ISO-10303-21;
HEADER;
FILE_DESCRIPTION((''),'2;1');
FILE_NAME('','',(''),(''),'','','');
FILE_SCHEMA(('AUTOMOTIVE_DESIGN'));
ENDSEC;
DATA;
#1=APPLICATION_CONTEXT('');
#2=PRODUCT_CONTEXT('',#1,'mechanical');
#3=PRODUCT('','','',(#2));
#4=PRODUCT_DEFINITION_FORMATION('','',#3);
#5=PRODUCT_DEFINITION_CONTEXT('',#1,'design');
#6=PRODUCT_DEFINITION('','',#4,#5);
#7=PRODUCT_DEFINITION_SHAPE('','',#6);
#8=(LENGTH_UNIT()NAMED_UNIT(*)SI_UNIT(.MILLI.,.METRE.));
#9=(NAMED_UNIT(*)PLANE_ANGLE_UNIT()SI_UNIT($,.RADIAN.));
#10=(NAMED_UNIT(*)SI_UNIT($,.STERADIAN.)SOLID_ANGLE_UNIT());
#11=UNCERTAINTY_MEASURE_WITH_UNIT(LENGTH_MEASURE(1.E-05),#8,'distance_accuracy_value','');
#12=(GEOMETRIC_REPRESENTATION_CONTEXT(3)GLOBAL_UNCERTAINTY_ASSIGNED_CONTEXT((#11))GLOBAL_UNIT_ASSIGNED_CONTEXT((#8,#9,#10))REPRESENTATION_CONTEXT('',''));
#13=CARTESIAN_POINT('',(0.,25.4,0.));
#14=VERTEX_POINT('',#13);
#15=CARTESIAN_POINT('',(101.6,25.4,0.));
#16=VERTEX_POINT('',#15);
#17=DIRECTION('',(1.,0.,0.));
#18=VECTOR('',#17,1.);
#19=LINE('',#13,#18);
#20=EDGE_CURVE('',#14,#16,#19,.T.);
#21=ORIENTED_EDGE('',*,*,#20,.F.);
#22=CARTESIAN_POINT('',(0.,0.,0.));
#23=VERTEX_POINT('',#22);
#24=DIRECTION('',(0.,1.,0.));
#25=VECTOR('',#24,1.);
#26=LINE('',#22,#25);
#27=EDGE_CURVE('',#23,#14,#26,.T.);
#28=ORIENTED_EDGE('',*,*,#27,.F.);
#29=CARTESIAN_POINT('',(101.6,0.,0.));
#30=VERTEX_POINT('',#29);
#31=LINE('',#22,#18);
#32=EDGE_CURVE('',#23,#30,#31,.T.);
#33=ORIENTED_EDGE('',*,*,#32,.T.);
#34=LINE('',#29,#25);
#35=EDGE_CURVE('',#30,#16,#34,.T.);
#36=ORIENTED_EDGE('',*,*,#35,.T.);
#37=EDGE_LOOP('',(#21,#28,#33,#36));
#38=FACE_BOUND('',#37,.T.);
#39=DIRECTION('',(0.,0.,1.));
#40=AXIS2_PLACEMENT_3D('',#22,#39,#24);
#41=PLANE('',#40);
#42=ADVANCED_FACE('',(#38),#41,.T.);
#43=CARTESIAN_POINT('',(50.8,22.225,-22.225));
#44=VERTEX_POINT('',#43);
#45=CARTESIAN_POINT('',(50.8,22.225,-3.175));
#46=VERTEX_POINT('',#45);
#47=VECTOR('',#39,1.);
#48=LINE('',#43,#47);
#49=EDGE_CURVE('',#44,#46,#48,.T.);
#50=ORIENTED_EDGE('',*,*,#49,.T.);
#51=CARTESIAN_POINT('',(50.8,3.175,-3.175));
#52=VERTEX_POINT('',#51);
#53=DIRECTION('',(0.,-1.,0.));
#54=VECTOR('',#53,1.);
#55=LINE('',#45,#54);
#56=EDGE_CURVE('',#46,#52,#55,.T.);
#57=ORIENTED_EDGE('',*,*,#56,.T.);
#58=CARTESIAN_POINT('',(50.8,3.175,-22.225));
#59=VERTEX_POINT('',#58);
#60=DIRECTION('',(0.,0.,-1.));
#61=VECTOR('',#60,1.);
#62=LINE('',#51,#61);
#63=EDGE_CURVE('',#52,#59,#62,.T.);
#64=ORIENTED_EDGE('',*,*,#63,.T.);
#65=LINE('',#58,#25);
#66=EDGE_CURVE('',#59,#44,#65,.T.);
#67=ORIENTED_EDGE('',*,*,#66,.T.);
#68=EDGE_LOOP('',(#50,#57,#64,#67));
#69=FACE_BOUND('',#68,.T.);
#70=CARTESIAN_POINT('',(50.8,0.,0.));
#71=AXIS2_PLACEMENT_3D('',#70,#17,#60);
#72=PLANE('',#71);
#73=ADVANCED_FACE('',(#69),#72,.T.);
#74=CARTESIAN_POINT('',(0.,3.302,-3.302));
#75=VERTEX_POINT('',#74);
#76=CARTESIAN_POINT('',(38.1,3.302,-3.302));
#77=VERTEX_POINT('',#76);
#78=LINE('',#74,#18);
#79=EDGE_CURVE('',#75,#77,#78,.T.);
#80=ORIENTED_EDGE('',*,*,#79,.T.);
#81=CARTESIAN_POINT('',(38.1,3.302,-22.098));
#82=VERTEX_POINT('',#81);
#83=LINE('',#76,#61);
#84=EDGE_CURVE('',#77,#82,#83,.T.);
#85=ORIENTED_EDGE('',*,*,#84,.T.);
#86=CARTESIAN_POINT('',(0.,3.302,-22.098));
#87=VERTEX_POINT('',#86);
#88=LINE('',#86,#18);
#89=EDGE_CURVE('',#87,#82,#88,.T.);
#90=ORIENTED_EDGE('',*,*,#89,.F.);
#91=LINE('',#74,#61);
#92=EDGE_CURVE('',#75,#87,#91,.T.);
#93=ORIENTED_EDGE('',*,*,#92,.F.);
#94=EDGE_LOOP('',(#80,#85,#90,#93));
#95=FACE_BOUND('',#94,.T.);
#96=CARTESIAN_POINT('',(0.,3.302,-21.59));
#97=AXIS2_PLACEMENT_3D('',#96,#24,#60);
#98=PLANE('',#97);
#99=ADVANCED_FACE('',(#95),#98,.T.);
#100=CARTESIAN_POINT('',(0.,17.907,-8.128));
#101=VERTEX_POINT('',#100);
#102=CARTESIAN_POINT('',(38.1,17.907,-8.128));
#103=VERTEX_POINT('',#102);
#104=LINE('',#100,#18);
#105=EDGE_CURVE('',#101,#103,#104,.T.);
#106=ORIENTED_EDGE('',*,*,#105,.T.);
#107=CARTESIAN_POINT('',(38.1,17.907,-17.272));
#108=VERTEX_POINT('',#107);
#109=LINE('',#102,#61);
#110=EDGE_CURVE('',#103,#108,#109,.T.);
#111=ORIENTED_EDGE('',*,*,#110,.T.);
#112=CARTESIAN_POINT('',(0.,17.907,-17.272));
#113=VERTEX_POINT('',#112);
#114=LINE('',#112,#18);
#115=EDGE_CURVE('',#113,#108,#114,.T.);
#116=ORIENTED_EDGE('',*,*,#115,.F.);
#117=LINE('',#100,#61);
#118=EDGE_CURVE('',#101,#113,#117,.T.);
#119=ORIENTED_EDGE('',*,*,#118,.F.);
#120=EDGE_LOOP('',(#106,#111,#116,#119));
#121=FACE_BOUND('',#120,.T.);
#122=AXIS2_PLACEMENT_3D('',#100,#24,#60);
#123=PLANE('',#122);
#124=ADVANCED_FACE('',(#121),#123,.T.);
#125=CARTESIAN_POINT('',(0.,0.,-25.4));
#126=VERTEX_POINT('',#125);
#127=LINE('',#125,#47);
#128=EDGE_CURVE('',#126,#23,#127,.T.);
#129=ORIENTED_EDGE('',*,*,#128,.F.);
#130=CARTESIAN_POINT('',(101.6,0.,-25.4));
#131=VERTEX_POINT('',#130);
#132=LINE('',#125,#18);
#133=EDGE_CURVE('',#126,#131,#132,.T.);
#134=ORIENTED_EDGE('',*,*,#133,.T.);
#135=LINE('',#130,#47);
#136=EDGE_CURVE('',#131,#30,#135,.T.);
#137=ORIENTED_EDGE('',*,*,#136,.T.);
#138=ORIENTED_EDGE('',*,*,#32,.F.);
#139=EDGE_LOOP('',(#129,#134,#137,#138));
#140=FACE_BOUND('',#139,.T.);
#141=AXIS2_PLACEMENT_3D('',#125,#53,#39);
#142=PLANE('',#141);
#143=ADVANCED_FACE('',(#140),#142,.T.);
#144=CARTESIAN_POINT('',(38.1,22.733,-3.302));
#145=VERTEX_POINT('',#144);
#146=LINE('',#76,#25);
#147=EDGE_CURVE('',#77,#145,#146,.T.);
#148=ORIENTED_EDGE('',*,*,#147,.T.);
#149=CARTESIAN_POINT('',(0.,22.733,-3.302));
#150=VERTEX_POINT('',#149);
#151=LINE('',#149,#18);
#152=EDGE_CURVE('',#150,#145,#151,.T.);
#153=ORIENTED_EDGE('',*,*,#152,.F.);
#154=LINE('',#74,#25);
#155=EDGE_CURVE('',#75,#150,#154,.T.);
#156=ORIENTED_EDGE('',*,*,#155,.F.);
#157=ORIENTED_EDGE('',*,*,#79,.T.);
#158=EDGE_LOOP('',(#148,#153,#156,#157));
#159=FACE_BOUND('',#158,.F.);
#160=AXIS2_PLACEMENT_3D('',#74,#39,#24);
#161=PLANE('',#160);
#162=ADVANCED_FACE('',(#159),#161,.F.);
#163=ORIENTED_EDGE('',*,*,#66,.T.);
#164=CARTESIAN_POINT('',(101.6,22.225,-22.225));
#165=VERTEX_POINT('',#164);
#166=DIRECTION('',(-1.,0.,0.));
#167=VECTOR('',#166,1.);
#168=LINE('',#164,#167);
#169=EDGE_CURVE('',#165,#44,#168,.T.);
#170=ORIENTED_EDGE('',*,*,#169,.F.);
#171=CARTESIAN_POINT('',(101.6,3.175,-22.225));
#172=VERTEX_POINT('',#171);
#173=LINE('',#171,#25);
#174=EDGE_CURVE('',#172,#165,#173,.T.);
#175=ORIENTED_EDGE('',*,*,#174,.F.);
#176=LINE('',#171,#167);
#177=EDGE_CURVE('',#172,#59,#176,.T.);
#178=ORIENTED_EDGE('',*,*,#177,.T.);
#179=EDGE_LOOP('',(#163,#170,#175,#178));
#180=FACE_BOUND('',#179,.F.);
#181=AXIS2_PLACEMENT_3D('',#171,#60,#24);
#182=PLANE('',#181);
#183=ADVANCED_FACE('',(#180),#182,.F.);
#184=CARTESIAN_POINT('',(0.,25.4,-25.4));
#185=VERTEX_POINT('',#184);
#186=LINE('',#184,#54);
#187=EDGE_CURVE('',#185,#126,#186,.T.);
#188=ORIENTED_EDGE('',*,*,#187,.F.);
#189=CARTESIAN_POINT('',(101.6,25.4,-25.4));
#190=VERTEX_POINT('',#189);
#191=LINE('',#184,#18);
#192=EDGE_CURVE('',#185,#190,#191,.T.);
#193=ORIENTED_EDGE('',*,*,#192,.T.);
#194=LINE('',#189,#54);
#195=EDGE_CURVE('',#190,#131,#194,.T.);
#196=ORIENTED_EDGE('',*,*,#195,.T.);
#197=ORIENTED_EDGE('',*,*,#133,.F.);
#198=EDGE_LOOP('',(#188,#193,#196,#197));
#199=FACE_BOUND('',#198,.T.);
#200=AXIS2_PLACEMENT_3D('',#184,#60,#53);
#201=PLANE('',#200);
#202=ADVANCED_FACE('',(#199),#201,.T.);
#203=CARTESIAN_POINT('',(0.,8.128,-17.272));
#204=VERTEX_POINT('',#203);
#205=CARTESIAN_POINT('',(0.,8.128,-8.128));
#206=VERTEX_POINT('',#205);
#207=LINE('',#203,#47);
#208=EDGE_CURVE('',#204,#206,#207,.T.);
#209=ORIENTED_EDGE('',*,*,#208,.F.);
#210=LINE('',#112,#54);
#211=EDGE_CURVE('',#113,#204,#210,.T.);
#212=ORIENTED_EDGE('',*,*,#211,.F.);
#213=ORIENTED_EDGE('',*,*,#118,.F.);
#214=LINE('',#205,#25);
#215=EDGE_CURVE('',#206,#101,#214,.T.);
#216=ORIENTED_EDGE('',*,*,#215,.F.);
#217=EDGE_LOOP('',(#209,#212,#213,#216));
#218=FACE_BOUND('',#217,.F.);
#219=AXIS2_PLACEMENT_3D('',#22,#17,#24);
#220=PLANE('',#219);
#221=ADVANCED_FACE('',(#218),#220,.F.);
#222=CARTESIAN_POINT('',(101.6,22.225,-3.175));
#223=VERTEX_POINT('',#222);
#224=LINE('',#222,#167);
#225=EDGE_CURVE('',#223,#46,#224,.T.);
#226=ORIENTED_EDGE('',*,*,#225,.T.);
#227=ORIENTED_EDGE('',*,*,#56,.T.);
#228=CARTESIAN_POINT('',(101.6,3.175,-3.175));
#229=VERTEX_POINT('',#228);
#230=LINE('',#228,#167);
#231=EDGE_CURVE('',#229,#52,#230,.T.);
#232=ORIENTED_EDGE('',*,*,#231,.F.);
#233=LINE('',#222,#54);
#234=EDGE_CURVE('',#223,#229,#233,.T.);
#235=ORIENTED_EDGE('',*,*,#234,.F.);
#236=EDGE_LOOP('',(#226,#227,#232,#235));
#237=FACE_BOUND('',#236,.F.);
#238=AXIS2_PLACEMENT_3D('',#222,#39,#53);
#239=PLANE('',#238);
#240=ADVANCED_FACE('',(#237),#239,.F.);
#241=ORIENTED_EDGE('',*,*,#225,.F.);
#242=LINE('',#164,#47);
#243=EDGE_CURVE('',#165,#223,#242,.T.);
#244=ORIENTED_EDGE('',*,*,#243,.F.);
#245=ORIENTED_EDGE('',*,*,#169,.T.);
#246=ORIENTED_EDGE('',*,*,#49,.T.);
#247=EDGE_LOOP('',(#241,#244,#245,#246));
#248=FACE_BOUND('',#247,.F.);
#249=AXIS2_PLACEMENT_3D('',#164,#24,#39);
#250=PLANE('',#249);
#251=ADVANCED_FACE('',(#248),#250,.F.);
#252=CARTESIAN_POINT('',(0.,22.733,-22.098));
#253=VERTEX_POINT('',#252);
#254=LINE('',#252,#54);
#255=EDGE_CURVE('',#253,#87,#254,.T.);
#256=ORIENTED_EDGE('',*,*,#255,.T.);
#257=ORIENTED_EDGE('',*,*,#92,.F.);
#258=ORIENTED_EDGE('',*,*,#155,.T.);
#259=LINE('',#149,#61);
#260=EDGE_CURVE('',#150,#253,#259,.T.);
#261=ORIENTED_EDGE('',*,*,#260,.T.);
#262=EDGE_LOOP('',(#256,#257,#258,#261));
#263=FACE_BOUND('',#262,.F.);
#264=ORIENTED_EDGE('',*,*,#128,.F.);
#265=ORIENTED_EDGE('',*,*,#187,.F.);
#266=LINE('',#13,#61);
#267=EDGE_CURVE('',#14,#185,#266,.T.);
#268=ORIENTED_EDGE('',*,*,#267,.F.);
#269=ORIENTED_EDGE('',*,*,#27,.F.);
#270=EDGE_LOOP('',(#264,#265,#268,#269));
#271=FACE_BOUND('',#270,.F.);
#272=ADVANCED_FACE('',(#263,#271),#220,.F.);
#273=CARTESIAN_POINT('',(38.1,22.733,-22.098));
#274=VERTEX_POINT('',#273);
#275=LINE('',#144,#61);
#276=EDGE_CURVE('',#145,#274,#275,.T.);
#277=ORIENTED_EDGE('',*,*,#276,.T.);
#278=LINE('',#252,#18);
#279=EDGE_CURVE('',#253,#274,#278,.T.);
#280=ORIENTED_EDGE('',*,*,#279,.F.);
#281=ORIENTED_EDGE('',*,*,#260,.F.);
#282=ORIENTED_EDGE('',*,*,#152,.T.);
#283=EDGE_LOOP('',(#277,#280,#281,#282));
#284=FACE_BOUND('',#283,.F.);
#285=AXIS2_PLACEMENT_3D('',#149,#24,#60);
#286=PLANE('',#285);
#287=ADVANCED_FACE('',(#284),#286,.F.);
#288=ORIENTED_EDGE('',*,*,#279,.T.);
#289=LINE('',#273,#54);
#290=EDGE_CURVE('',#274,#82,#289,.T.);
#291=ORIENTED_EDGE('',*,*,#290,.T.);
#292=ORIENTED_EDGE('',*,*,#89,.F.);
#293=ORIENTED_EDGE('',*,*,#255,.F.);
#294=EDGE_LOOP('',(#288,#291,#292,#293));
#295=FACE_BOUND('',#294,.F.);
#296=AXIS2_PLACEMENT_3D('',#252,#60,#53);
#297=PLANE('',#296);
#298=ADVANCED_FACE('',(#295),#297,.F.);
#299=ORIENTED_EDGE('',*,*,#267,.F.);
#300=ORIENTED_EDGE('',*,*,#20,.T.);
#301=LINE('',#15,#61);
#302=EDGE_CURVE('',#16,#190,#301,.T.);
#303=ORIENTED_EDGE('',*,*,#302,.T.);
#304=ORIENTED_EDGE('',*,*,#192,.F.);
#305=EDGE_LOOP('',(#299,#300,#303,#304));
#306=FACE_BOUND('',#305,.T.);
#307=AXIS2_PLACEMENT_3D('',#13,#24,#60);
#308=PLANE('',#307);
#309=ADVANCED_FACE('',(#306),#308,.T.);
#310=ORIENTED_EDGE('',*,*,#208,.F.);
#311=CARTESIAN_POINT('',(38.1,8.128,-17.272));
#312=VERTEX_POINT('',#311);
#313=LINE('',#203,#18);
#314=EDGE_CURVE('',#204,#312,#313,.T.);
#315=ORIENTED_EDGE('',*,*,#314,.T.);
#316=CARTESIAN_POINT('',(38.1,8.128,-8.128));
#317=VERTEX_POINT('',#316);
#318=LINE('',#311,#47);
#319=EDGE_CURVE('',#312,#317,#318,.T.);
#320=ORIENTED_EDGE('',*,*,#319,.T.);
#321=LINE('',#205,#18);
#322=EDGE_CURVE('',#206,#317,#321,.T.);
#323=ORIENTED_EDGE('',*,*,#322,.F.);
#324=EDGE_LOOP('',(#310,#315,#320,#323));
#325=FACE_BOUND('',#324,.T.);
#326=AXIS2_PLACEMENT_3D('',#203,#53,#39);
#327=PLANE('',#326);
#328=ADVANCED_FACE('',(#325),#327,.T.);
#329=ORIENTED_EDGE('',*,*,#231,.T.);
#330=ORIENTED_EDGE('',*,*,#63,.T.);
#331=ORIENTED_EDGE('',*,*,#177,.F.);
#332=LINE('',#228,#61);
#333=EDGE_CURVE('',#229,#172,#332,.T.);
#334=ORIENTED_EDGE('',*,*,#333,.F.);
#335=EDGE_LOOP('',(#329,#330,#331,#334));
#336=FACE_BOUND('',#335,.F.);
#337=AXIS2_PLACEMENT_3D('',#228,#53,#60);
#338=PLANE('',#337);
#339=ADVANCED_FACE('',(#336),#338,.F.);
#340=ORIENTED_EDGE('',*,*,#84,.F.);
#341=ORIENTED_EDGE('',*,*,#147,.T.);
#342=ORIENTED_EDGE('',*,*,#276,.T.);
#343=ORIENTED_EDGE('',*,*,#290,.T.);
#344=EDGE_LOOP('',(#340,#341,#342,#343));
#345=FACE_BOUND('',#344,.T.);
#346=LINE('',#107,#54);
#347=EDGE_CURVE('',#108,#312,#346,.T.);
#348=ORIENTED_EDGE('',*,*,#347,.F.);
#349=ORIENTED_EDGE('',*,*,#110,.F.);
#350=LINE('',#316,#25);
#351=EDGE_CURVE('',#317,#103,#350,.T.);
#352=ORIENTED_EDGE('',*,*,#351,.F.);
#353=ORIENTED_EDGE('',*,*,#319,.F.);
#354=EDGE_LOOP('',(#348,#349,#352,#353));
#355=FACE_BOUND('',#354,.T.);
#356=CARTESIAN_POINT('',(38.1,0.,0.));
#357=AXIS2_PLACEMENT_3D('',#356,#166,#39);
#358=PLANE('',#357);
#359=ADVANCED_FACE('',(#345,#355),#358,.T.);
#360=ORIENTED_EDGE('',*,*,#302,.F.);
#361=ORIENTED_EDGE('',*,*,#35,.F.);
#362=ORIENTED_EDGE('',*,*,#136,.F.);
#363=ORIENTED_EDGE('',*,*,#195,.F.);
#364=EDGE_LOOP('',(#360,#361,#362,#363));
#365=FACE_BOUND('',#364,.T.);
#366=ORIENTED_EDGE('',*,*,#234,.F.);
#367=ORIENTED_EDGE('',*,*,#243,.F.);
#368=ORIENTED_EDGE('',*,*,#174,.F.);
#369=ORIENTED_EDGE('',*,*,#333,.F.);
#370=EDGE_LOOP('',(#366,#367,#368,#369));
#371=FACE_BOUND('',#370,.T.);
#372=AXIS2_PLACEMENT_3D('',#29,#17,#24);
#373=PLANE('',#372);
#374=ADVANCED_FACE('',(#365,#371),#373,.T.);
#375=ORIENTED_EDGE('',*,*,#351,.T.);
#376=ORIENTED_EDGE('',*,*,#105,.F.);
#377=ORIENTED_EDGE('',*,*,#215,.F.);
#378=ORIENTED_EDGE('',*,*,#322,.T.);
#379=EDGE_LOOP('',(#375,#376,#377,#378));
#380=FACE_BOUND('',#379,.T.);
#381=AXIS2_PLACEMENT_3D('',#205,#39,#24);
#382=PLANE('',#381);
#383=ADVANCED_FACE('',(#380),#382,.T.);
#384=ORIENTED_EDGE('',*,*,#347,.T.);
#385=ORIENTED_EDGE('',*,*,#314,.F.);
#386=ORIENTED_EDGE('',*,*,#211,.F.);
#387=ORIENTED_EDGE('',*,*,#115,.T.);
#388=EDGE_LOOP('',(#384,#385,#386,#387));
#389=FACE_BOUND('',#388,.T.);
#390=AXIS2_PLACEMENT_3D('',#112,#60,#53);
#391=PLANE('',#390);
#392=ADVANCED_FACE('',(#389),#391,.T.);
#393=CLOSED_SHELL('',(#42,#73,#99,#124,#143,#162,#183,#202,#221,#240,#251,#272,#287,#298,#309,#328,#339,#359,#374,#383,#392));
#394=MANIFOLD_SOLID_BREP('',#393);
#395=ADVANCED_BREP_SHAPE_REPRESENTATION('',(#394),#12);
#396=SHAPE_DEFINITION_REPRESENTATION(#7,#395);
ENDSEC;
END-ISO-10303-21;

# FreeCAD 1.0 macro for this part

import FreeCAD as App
import Part
import Sketcher
from FreeCAD import Vector
Q = App.Units.Quantity


def add_polygon(sketch, points):
    """Adds a closed chain of lines whose ends are joined by coincident constraints."""
    first, n = sketch.GeometryCount, len(points)
    for a, b in zip(points, points[1:] + points[:1]):
        sketch.addGeometry(Part.LineSegment(App.Vector(*a, 0), App.Vector(*b, 0)), False)
    for i in range(n):
        sketch.addConstraint(Sketcher.Constraint("Coincident", first + i, 2, first + (i + 1) % n, 1))

doc = App.newDocument("Part")
body = doc.addObject("PartDesign::Body", "Body")

sketch1 = body.newObject("Sketcher::SketchObject", "Sketch")
sketch1.AttachmentSupport = (doc.getObject("YZ_Plane"), [""])
sketch1.MapMode = "FlatFace"
add_polygon(sketch1, [(25, 0), (0, 0), (0, -25), (25, -25)])
sketch1.addConstraint([
    Sketcher.Constraint("Horizontal", 0),
    Sketcher.Constraint("Vertical", 1),
    Sketcher.Constraint("Horizontal", 2),
    Sketcher.Constraint("Vertical", 3),
    Sketcher.Constraint("Coincident", 0, 2, -1, 1),
    Sketcher.Constraint("Equal", 2, 1),
    Sketcher.Constraint("DistanceX", 0, 2, 0, 1, Q("1 in")),
])
pad1 = body.newObject("PartDesign::Pad", "Pad")
pad1.Profile = sketch1
pad1.Length = Q("4 in")

sketch2 = body.newObject("Sketcher::SketchObject", "Sketch001")
sketch2.AttachmentSupport = (doc.getObject("YZ_Plane"), [""])
sketch2.MapMode = "FlatFace"
sketch2.AttachmentOffset = App.Placement(Vector(0, 0, 4 * 25.4), App.Rotation())
add_polygon(sketch2, [(22, -3), (3, -3), (3, -22), (22, -22)])
sketch2.addConstraint([
    Sketcher.Constraint("Horizontal", 0),
    Sketcher.Constraint("Vertical", 1),
    Sketcher.Constraint("Horizontal", 2),
    Sketcher.Constraint("Vertical", 3),
    Sketcher.Constraint("Equal", 2, 1),
    Sketcher.Constraint("DistanceX", 0, 2, 0, 1, Q("0.75 in")),
    Sketcher.Constraint("DistanceX", -1, 1, 0, 2, Q("0.125 in")),
    Sketcher.Constraint("DistanceY", 0, 2, -1, 1, Q("0.125 in")),
])
pocket1 = body.newObject("PartDesign::Pocket", "Pocket")
pocket1.Profile = sketch2
pocket1.Length = Q("2 in")

sketch3 = body.newObject("Sketcher::SketchObject", "Sketch002")
sketch3.AttachmentSupport = (doc.getObject("YZ_Plane"), [""])
sketch3.MapMode = "FlatFace"
add_polygon(sketch3, [(3, -22), (3, -3), (23, -3), (23, -22)])
add_polygon(sketch3, [(8, -8), (8, -17), (18, -17), (18, -8)])
sketch3.addConstraint([
    Sketcher.Constraint("Vertical", 0),
    Sketcher.Constraint("Horizontal", 1),
    Sketcher.Constraint("Vertical", 2),
    Sketcher.Constraint("Horizontal", 3),
    Sketcher.Constraint("Vertical", 4),
    Sketcher.Constraint("Horizontal", 5),
    Sketcher.Constraint("Vertical", 6),
    Sketcher.Constraint("Horizontal", 7),
    Sketcher.Constraint("DistanceY", 0, 1, 0, 2, Q("0.74 in")),
    Sketcher.Constraint("DistanceY", 4, 2, 4, 1, Q("0.36 in")),
    Sketcher.Constraint("DistanceX", 1, 1, 1, 2, Q("0.765 in")),
    Sketcher.Constraint("DistanceX", 5, 1, 5, 2, Q("0.385 in")),
    Sketcher.Constraint("DistanceX", -1, 1, 0, 2, Q("0.13 in")),
    Sketcher.Constraint("DistanceY", 0, 2, -1, 1, Q("0.13 in")),
    Sketcher.Constraint("DistanceX", -1, 1, 4, 2, Q("0.32 in")),
    Sketcher.Constraint("DistanceY", 4, 2, -1, 1, Q("0.68 in")),
])
pocket2 = body.newObject("PartDesign::Pocket", "Pocket001")
pocket2.Profile = sketch3
pocket2.Length = Q("1.5 in")
pocket2.Reversed = True

doc.recompute()
